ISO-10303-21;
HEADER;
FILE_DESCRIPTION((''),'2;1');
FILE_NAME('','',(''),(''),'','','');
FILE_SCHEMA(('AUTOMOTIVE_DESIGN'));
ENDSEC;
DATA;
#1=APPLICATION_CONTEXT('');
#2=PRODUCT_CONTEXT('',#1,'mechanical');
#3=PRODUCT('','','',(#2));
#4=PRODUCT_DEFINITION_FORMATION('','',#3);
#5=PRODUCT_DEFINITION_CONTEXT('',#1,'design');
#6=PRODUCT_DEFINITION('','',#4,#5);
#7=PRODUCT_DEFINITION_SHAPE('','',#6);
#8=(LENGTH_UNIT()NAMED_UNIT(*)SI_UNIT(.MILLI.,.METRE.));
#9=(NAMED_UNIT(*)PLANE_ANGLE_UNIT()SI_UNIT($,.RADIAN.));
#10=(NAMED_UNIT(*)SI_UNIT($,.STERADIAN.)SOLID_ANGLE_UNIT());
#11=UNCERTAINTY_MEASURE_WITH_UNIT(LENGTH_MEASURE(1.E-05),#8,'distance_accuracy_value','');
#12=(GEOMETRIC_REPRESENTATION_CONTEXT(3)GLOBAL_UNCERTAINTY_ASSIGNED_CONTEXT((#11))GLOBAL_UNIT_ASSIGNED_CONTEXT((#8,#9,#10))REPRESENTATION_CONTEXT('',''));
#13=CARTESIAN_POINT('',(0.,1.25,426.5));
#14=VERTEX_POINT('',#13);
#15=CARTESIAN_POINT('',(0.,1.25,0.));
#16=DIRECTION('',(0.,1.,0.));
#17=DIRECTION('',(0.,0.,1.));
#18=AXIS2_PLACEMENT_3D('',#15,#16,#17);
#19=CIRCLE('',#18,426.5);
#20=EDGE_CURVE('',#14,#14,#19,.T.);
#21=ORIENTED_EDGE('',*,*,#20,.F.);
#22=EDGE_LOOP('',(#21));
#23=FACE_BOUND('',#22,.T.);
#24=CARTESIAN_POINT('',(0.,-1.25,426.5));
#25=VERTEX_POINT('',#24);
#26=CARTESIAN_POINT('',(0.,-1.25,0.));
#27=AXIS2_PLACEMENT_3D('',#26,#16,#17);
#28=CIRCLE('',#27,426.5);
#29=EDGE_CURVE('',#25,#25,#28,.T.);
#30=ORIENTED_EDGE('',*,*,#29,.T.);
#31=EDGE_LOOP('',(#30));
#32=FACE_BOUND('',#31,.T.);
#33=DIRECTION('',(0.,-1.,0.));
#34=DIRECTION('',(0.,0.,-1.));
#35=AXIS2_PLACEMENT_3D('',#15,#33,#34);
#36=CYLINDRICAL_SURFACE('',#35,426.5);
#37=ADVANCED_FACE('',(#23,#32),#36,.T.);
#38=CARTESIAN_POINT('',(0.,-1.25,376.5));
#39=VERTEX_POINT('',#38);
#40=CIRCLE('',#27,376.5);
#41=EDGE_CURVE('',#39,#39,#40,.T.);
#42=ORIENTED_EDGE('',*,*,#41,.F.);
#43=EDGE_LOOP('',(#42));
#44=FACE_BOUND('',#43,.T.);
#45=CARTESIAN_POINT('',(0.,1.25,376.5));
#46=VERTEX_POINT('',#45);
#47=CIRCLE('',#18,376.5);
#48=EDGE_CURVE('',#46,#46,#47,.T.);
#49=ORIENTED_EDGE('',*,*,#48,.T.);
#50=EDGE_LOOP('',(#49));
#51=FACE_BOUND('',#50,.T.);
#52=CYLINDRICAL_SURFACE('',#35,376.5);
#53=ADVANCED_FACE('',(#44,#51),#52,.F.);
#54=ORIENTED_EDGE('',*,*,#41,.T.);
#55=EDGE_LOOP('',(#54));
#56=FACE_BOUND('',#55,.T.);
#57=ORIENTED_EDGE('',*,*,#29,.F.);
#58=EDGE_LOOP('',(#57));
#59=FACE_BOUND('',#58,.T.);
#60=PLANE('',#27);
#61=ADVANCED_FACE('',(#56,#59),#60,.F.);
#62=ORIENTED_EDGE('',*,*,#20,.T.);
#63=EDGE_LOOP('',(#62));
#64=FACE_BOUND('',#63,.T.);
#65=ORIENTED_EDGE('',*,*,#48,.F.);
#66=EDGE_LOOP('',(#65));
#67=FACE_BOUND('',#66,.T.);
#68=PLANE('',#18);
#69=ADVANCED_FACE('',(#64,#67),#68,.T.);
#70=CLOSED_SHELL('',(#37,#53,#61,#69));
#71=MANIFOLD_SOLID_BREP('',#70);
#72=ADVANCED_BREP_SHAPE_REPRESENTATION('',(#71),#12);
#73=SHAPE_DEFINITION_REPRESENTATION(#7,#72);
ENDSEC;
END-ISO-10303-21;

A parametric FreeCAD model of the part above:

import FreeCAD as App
import Part
import Sketcher

V = App.Vector

doc = App.newDocument("Part")
body = doc.addObject("PartDesign::Body", "Body")

sketch1 = doc.addObject("Sketcher::SketchObject", "Sketch")
body.addObject(sketch1)
sketch1.AttachmentSupport = (doc.XZ_Plane, [""])
sketch1.MapMode = "FlatFace"
sketch1.addGeometry(Part.Circle(V(0, 0, 0), V(0, 0, 1), 426), False)
sketch1.addGeometry(Part.Circle(V(0, 0, 0), V(0, 0, 1), 376), False)
sketch1.addConstraint(Sketcher.Constraint("Coincident", 0, 3, -1, 1))
sketch1.addConstraint(Sketcher.Constraint("Coincident", 1, 3, -1, 1))
sketch1.addConstraint(Sketcher.Constraint("Diameter", 0, 853.0))
sketch1.addConstraint(Sketcher.Constraint("Diameter", 1, 753.0))
pad1 = doc.addObject("PartDesign::Pad", "Pad")
body.addObject(pad1)
pad1.Profile = sketch1
pad1.Length = 2.5
pad1.Midplane = True

doc.recompute()
